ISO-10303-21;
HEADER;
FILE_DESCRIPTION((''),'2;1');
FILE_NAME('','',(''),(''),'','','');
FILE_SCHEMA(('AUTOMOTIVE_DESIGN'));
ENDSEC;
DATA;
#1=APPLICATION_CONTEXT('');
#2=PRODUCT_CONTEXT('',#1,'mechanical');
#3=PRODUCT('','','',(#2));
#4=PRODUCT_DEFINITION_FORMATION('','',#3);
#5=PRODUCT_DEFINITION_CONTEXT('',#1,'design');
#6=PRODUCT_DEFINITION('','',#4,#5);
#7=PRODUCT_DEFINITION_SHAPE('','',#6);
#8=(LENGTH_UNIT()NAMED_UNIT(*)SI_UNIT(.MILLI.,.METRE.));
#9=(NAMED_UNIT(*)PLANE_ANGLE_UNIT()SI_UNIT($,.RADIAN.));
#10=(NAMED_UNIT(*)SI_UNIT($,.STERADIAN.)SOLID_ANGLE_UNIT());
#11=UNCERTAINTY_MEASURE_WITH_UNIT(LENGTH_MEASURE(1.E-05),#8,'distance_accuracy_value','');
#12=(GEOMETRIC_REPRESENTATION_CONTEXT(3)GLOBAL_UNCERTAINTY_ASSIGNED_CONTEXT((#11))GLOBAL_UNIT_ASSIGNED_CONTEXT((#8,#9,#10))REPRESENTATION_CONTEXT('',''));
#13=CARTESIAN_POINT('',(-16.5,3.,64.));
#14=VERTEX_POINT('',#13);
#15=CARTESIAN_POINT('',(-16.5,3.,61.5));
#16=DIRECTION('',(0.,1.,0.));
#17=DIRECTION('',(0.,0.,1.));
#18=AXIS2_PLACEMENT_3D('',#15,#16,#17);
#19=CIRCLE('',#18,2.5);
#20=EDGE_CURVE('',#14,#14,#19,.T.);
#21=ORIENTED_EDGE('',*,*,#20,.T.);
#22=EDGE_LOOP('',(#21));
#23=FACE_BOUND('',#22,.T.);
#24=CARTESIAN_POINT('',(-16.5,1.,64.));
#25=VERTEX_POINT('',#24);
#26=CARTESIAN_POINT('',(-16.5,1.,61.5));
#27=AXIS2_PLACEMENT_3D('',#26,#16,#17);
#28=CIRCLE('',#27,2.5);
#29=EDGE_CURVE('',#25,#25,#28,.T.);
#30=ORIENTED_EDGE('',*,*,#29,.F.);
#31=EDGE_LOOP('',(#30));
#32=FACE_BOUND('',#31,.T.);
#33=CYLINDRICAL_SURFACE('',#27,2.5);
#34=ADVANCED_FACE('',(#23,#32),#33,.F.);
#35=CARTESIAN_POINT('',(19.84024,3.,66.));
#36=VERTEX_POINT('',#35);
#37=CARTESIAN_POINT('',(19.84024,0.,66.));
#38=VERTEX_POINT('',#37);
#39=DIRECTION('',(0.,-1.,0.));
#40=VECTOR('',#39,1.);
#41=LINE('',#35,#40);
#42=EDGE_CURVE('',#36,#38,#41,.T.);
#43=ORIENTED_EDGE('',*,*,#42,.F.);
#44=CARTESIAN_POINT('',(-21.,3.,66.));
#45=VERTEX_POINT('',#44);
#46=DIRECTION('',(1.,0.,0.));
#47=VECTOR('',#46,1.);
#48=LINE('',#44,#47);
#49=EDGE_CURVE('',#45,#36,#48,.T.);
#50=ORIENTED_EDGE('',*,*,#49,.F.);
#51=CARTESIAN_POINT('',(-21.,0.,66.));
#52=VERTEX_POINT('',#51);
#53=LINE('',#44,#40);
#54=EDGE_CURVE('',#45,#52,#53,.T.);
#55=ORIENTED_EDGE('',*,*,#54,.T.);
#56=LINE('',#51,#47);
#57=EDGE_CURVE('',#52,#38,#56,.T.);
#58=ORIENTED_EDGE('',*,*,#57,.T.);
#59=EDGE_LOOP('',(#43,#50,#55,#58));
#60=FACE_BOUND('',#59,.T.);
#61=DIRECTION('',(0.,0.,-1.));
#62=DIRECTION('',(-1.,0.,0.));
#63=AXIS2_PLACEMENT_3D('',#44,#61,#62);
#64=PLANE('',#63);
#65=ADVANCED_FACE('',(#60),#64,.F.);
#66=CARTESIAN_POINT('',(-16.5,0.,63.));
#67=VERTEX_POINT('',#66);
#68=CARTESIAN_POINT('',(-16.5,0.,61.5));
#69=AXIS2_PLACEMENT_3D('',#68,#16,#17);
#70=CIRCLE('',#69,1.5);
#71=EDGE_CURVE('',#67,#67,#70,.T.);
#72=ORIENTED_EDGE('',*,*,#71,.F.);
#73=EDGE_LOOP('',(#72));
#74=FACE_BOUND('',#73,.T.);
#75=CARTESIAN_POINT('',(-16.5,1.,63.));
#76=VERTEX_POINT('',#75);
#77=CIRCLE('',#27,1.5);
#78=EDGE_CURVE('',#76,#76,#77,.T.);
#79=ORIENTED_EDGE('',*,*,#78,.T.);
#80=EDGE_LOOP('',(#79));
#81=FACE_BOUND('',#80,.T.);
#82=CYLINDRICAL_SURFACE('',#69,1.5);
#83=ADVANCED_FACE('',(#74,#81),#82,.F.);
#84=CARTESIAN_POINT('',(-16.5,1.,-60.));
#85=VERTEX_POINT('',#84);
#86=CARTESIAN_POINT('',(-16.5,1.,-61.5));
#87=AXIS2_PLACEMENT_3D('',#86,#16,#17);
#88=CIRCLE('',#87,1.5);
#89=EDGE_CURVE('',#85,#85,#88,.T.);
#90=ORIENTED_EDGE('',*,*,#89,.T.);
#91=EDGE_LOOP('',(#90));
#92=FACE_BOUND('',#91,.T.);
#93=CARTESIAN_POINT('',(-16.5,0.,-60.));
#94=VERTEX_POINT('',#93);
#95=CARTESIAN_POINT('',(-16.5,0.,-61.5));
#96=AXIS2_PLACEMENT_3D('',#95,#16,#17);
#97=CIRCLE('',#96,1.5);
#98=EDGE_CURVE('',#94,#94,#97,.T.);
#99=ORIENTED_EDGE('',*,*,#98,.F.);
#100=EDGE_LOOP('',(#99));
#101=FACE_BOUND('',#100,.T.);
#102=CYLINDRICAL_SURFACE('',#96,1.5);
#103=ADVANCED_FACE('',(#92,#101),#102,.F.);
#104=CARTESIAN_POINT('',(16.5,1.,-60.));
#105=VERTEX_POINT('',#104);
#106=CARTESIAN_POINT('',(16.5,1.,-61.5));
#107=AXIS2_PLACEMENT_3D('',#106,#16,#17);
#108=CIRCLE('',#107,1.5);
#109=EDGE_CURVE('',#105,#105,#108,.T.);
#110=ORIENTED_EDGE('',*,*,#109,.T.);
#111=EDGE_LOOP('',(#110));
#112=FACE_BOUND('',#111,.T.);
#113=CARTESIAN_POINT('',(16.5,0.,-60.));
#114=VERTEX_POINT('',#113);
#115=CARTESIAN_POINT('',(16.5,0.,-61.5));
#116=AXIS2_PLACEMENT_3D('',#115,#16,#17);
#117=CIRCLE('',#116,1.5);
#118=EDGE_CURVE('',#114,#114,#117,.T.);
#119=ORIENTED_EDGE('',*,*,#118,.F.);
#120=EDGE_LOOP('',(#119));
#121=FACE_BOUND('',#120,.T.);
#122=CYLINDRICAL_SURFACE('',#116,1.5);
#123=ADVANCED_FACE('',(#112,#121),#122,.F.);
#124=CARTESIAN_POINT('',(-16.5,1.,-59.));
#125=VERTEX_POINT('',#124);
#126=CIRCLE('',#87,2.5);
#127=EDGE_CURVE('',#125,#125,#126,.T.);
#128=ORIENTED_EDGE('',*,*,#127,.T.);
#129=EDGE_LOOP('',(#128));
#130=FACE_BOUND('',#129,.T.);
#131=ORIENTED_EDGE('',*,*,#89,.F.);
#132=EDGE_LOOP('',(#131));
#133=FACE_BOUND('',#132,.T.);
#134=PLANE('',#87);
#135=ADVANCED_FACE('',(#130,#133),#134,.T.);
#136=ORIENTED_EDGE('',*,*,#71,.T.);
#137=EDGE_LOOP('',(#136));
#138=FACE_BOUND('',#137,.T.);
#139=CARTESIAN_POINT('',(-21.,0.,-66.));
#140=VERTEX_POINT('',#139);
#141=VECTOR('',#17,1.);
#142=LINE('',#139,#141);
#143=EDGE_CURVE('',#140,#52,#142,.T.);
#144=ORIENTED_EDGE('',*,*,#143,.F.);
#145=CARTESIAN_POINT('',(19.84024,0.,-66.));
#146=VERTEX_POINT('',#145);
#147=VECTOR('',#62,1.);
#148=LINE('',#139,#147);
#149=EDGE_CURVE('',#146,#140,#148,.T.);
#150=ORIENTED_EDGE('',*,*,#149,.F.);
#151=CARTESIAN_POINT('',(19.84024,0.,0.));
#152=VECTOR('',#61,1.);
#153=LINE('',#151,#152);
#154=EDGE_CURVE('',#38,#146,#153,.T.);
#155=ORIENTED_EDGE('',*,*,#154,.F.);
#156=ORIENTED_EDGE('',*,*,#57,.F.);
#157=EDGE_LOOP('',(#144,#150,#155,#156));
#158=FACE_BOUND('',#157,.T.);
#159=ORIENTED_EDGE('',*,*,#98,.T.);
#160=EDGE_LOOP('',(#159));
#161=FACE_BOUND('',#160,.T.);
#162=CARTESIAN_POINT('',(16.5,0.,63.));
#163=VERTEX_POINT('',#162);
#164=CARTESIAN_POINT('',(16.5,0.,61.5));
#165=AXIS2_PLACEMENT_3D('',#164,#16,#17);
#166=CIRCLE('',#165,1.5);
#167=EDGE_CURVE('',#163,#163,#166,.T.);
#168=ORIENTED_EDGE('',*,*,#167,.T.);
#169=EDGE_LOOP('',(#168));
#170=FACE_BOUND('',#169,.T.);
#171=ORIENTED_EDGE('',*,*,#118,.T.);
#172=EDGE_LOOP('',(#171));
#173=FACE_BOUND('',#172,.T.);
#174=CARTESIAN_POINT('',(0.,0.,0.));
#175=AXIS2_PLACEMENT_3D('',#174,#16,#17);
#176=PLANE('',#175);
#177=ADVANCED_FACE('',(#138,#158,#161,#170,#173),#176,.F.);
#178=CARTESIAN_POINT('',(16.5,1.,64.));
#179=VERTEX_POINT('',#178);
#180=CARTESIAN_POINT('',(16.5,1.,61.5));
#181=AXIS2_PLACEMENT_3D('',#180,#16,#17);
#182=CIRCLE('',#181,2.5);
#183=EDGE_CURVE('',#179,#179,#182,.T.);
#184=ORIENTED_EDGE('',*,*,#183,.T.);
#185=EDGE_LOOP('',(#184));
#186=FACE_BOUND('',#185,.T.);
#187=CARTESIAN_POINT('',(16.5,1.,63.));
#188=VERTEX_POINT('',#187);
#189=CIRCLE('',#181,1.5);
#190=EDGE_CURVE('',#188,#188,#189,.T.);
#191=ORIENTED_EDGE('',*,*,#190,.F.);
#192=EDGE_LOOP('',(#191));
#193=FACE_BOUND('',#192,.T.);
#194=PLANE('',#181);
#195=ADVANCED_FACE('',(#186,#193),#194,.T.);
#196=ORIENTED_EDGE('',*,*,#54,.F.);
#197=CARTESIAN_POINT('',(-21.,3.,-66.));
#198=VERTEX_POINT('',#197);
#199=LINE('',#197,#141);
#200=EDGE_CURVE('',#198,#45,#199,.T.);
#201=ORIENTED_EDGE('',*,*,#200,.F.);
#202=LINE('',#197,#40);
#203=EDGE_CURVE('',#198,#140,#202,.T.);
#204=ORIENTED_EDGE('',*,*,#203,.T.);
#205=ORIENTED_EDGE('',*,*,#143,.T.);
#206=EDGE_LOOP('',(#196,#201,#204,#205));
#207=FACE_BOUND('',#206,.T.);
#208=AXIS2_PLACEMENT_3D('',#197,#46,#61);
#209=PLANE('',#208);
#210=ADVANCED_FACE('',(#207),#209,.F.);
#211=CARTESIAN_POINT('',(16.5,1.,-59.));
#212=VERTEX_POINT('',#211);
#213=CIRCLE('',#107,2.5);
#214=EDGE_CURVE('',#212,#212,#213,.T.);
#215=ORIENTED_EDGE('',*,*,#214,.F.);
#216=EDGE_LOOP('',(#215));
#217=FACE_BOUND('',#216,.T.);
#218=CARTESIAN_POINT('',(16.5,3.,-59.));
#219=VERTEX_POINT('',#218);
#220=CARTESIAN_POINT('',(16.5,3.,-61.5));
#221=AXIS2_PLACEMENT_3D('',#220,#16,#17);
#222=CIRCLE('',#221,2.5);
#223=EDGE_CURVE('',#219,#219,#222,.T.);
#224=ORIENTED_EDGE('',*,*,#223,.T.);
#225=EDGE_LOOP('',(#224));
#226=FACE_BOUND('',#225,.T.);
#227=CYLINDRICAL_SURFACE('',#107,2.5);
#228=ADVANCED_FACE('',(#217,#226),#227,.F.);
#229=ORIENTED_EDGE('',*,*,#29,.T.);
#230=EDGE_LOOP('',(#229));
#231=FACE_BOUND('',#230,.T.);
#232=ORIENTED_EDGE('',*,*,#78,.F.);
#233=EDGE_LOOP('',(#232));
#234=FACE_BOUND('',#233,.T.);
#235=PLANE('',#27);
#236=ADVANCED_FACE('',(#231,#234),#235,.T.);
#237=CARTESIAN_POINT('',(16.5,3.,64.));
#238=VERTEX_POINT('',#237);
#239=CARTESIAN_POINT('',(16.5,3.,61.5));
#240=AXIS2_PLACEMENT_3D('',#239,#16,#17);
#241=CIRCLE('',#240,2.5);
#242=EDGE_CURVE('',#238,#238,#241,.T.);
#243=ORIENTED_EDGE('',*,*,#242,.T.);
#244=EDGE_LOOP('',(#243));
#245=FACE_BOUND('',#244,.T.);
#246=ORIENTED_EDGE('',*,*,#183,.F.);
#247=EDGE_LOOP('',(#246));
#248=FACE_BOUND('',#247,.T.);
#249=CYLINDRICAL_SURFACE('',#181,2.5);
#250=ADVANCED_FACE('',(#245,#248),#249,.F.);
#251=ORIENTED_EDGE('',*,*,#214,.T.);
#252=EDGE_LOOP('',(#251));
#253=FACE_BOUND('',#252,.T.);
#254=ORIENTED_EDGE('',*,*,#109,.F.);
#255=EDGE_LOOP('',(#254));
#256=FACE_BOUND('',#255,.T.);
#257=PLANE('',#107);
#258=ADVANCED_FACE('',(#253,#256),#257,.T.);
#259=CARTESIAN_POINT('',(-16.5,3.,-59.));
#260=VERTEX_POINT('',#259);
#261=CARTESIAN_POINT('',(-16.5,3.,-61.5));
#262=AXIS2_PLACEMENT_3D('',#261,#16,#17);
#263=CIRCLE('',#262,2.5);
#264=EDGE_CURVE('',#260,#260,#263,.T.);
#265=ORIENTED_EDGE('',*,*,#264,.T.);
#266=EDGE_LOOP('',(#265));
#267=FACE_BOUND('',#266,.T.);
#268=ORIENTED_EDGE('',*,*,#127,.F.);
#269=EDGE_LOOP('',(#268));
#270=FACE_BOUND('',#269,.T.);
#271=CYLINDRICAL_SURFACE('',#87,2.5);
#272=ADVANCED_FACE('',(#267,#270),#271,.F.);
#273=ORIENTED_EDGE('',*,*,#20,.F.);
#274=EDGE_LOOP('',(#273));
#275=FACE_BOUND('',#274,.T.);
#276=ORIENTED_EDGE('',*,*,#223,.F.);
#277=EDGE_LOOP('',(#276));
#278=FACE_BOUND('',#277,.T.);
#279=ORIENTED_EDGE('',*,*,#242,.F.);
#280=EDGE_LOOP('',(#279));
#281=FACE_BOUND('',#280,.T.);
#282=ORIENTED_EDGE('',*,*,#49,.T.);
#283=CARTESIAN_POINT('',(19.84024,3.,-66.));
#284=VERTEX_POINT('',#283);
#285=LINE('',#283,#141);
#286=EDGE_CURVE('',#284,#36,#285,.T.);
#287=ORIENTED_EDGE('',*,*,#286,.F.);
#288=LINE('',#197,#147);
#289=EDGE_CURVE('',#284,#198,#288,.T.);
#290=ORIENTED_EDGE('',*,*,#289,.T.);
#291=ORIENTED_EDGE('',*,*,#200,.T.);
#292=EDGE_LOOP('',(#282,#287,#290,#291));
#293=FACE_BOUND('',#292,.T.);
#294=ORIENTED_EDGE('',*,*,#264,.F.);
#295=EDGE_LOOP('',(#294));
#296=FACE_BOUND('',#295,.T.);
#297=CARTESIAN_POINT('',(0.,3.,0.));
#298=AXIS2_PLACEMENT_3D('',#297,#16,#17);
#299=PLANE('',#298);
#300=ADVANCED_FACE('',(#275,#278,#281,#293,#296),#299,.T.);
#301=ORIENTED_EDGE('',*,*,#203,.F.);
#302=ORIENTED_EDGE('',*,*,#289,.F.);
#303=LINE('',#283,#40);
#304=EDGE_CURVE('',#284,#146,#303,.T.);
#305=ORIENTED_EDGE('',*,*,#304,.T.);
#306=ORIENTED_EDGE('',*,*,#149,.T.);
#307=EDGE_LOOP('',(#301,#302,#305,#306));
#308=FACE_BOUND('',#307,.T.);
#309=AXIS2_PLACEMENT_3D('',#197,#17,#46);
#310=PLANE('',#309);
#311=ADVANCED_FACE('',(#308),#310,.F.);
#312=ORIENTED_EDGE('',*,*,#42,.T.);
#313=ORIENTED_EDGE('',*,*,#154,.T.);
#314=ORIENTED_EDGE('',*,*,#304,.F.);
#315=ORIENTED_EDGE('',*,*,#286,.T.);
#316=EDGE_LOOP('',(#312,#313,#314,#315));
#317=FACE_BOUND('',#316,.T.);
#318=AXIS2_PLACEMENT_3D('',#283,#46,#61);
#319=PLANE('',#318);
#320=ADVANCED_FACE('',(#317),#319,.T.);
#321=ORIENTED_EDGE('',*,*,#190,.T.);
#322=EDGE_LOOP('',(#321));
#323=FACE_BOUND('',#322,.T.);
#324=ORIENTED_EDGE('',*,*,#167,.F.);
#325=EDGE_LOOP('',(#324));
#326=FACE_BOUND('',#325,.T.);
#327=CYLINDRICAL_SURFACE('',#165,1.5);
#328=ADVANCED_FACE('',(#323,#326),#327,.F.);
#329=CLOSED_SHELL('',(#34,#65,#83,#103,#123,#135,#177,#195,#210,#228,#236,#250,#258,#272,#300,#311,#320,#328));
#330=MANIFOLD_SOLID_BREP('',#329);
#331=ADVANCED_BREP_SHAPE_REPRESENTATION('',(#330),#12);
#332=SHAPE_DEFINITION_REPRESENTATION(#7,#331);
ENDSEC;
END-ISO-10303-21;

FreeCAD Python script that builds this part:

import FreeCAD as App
import Part
import Sketcher

V = App.Vector
Q = App.Units.Quantity


def add_polygon(sketch, points):
    """Adds a closed chain of lines whose ends are joined by coincident constraints."""
    first, n = sketch.GeometryCount, len(points)
    for a, b in zip(points, points[1:] + points[:1]):
        sketch.addGeometry(Part.LineSegment(App.Vector(*a, 0), App.Vector(*b, 0)), False)
    for i in range(n):
        sketch.addConstraint(Sketcher.Constraint("Coincident", first + i, 2, first + (i + 1) % n, 1))

doc = App.newDocument("Part")
body = doc.addObject("PartDesign::Body", "Body")

# Sketch on XZ plane
sketch1 = body.newObject("Sketcher::SketchObject", "Sketch")
sketch1.AttachmentSupport = (doc.getObject("XZ_Plane"), [""])
sketch1.MapMode = "FlatFace"
add_polygon(sketch1, [(-21, -66), (-21, 66), (21, 66), (21, -66)])  # lines 0-3
sketch1.addConstraint(Sketcher.Constraint("Vertical", 0))
sketch1.addConstraint(Sketcher.Constraint("Horizontal", 1))
sketch1.addConstraint(Sketcher.Constraint("Vertical", 2))
sketch1.addConstraint(Sketcher.Constraint("Horizontal", 3))
sketch1.addConstraint(Sketcher.Constraint("Symmetric", 0, 2, 2, 2, -1, 1))
sketch1.addConstraint(Sketcher.Constraint("DistanceX", 1, 1, 1, 2, Q("42 mm")))
sketch1.addConstraint(Sketcher.Constraint("DistanceY", 0, 1, 0, 2, Q("132 mm")))
pad1 = body.newObject("PartDesign::Pad", "Pad")
pad1.Profile = sketch1
pad1.Length = 3
pad1.Reversed = True

# Sketch on XZ plane
sketch2 = body.newObject("Sketcher::SketchObject", "Sketch001")
sketch2.AttachmentSupport = (doc.getObject("XZ_Plane"), [""])
sketch2.MapMode = "FlatFace"
sketch2.AttachmentOffset = App.Placement(V(0, 0, -3), App.Rotation())
sketch2.addGeometry(Part.Circle(V(-16.5, -61.5, 0), V(0, 0, 1), 2.5), False)
sketch2.addGeometry(Part.Circle(V(16.5, -61.5, 0), V(0, 0, 1), 2.5), False)
sketch2.addGeometry(Part.Circle(V(16.5, 61.5, 0), V(0, 0, 1), 2.5), False)
sketch2.addGeometry(Part.Circle(V(-16.5, 61.5, 0), V(0, 0, 1), 2.5), False)
sketch2.addConstraint(Sketcher.Constraint("Equal", 0, 1))
sketch2.addConstraint(Sketcher.Constraint("Equal", 1, 2))
sketch2.addConstraint(Sketcher.Constraint("Equal", 2, 3))
sketch2.addConstraint(Sketcher.Constraint("Symmetric", 0, 3, 2, 3, -1, 1))
sketch2.addConstraint(Sketcher.Constraint("Symmetric", 1, 3, 3, 3, -1, 1))
sketch2.addConstraint(Sketcher.Constraint("Symmetric", 0, 3, 1, 3, -2))
sketch2.addConstraint(Sketcher.Constraint("Diameter", 0, Q("5 mm")))
sketch2.addConstraint(Sketcher.Constraint("DistanceX", 0, 3, 1, 3, Q("33 mm")))
sketch2.addConstraint(Sketcher.Constraint("DistanceY", 1, 3, 2, 3, Q("123 mm")))
pocket1 = body.newObject("PartDesign::Pocket", "Pocket")
pocket1.Profile = sketch2
pocket1.Length = 2
pocket1.Reversed = True

# Sketch on XZ plane
sketch3 = body.newObject("Sketcher::SketchObject", "Sketch002")
sketch3.AttachmentSupport = (doc.getObject("XZ_Plane"), [""])
sketch3.MapMode = "FlatFace"
sketch3.AttachmentOffset = App.Placement(V(0, 0, -1), App.Rotation())
sketch3.addGeometry(Part.Circle(V(-16.5, -61.5, 0), V(0, 0, 1), 1.5), False)
sketch3.addGeometry(Part.Circle(V(16.5, -61.5, 0), V(0, 0, 1), 1.5), False)
sketch3.addGeometry(Part.Circle(V(16.5, 61.5, 0), V(0, 0, 1), 1.5), False)
sketch3.addGeometry(Part.Circle(V(-16.5, 61.5, 0), V(0, 0, 1), 1.5), False)
sketch3.addConstraint(Sketcher.Constraint("Equal", 0, 1))
sketch3.addConstraint(Sketcher.Constraint("Equal", 1, 2))
sketch3.addConstraint(Sketcher.Constraint("Equal", 2, 3))
sketch3.addConstraint(Sketcher.Constraint("Symmetric", 0, 3, 2, 3, -1, 1))
sketch3.addConstraint(Sketcher.Constraint("Symmetric", 1, 3, 3, 3, -1, 1))
sketch3.addConstraint(Sketcher.Constraint("Symmetric", 0, 3, 1, 3, -2))
sketch3.addConstraint(Sketcher.Constraint("Diameter", 0, Q("3 mm")))
sketch3.addConstraint(Sketcher.Constraint("DistanceX", 0, 3, 1, 3, Q("33 mm")))
sketch3.addConstraint(Sketcher.Constraint("DistanceY", 1, 3, 2, 3, Q("123 mm")))
pocket2 = body.newObject("PartDesign::Pocket", "Pocket001")
pocket2.Profile = sketch3
pocket2.Type = "ThroughAll"
pocket2.Reversed = True

# Sketch on XZ plane
sketch4 = body.newObject("Sketcher::SketchObject", "Sketch003")
sketch4.AttachmentSupport = (doc.getObject("XZ_Plane"), [""])
sketch4.MapMode = "FlatFace"
sketch4.AttachmentOffset = App.Placement(V(0, 0, -3), App.Rotation())
add_polygon(sketch4, [(21, -66), (19.8, -66), (19.8, 927.1), (21, 927.1)])  # lines 0-3
sketch4.addConstraint(Sketcher.Constraint("Horizontal", 0))
sketch4.addConstraint(Sketcher.Constraint("Vertical", 1))
sketch4.addConstraint(Sketcher.Constraint("Horizontal", 2))
sketch4.addConstraint(Sketcher.Constraint("Vertical", 3))
sketch4.addConstraint(Sketcher.Constraint("DistanceY", 0, 2, -1, 1, Q("66 mm")))
sketch4.addConstraint(Sketcher.Constraint("DistanceX", -1, 1, 2, 2, Q("21 mm")))
sketch4.addConstraint(Sketcher.Constraint("DistanceX", 0, 2, 0, 1, Q("1.15976 mm")))
sketch4.addConstraint(Sketcher.Constraint("DistanceY", 1, 1, 1, 2, Q("993.124539 mm")))
pocket3 = body.newObject("PartDesign::Pocket", "Pocket002")
pocket3.Profile = sketch4
pocket3.Type = "ThroughAll"
pocket3.Reversed = True

doc.recompute()
